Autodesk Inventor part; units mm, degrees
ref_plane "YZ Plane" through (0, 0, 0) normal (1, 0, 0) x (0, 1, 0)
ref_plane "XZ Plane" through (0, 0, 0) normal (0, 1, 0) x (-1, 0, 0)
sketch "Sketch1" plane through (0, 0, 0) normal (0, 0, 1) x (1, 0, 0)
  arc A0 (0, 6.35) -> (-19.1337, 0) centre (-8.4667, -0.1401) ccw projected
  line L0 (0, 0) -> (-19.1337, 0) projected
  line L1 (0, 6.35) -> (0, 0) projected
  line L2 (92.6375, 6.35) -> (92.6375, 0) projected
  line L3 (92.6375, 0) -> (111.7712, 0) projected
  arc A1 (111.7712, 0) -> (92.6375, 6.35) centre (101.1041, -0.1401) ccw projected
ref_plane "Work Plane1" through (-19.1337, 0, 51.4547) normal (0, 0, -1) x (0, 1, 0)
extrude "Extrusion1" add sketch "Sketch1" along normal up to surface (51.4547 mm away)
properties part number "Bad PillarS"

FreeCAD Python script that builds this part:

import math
import FreeCAD as App
import Part
import Sketcher
from FreeCAD import Vector
Q = App.Units.Quantity

doc = App.newDocument("Part")
body = doc.addObject("PartDesign::Body", "Body")
body.AllowCompound = True

sketch1 = body.newObject("Sketcher::SketchObject", "Sketch")
sketch1.AttachmentSupport = (doc.getObject("XY_Plane"), [""])
sketch1.MapMode = "FlatFace"
sketch1.addGeometry([
    Part.LineSegment(Vector(0, 0, 0), Vector(0, 6, 0)),
    Part.ArcOfCircle(Part.Circle(Vector(-8, 0, 0), Vector(0, 0, 1), 11), math.radians(37), math.radians(179)),
    Part.LineSegment(Vector(-19, 0, 0), Vector(0, 0, 0)),
    Part.ArcOfCircle(Part.Circle(Vector(101, 0, 0), Vector(0, 0, 1), 11), math.radians(1), math.radians(143)),
    Part.LineSegment(Vector(93, 6, 0), Vector(93, 0, 0)),
    Part.LineSegment(Vector(93, 0, 0), Vector(112, 0, 0)),
], False)
sketch1.addConstraint([
    Sketcher.Constraint("Coincident", 0, 2, 1, 1),
    Sketcher.Constraint("Coincident", 1, 2, 2, 1),
    Sketcher.Constraint("Coincident", 2, 2, 0, 1),
    Sketcher.Constraint("Coincident", 3, 2, 4, 1),
    Sketcher.Constraint("Coincident", 4, 2, 5, 1),
    Sketcher.Constraint("Coincident", 5, 2, 3, 1),
    Sketcher.Constraint("Vertical", 0),
    Sketcher.Constraint("Horizontal", 2),
    Sketcher.Constraint("Vertical", 4),
    Sketcher.Constraint("Horizontal", 5),
    Sketcher.Constraint("Coincident", 2, 2, -1, 1),
    Sketcher.Constraint("Equal", 1, 3),
    Sketcher.Constraint("PointOnObject", 4, 2, -1),
    Sketcher.Constraint("Horizontal", 1, 3, 3, 3),
    Sketcher.Constraint("Horizontal", 0, 2, 3, 2),
    Sketcher.Constraint("Radius", 1, Q("0.42 in")),
    Sketcher.Constraint("DistanceY", 0, 1, 0, 2, Q("0.25 in")),
    Sketcher.Constraint("DistanceX", 2, 1, 2, 2, Q("0.7533 in")),
    Sketcher.Constraint("DistanceX", 1, 3, 3, 3, Q("4.3138 in")),
])
pad1 = body.newObject("PartDesign::Pad", "Pad")
pad1.Profile = sketch1
pad1.Length = 51.4547

doc.recompute()
